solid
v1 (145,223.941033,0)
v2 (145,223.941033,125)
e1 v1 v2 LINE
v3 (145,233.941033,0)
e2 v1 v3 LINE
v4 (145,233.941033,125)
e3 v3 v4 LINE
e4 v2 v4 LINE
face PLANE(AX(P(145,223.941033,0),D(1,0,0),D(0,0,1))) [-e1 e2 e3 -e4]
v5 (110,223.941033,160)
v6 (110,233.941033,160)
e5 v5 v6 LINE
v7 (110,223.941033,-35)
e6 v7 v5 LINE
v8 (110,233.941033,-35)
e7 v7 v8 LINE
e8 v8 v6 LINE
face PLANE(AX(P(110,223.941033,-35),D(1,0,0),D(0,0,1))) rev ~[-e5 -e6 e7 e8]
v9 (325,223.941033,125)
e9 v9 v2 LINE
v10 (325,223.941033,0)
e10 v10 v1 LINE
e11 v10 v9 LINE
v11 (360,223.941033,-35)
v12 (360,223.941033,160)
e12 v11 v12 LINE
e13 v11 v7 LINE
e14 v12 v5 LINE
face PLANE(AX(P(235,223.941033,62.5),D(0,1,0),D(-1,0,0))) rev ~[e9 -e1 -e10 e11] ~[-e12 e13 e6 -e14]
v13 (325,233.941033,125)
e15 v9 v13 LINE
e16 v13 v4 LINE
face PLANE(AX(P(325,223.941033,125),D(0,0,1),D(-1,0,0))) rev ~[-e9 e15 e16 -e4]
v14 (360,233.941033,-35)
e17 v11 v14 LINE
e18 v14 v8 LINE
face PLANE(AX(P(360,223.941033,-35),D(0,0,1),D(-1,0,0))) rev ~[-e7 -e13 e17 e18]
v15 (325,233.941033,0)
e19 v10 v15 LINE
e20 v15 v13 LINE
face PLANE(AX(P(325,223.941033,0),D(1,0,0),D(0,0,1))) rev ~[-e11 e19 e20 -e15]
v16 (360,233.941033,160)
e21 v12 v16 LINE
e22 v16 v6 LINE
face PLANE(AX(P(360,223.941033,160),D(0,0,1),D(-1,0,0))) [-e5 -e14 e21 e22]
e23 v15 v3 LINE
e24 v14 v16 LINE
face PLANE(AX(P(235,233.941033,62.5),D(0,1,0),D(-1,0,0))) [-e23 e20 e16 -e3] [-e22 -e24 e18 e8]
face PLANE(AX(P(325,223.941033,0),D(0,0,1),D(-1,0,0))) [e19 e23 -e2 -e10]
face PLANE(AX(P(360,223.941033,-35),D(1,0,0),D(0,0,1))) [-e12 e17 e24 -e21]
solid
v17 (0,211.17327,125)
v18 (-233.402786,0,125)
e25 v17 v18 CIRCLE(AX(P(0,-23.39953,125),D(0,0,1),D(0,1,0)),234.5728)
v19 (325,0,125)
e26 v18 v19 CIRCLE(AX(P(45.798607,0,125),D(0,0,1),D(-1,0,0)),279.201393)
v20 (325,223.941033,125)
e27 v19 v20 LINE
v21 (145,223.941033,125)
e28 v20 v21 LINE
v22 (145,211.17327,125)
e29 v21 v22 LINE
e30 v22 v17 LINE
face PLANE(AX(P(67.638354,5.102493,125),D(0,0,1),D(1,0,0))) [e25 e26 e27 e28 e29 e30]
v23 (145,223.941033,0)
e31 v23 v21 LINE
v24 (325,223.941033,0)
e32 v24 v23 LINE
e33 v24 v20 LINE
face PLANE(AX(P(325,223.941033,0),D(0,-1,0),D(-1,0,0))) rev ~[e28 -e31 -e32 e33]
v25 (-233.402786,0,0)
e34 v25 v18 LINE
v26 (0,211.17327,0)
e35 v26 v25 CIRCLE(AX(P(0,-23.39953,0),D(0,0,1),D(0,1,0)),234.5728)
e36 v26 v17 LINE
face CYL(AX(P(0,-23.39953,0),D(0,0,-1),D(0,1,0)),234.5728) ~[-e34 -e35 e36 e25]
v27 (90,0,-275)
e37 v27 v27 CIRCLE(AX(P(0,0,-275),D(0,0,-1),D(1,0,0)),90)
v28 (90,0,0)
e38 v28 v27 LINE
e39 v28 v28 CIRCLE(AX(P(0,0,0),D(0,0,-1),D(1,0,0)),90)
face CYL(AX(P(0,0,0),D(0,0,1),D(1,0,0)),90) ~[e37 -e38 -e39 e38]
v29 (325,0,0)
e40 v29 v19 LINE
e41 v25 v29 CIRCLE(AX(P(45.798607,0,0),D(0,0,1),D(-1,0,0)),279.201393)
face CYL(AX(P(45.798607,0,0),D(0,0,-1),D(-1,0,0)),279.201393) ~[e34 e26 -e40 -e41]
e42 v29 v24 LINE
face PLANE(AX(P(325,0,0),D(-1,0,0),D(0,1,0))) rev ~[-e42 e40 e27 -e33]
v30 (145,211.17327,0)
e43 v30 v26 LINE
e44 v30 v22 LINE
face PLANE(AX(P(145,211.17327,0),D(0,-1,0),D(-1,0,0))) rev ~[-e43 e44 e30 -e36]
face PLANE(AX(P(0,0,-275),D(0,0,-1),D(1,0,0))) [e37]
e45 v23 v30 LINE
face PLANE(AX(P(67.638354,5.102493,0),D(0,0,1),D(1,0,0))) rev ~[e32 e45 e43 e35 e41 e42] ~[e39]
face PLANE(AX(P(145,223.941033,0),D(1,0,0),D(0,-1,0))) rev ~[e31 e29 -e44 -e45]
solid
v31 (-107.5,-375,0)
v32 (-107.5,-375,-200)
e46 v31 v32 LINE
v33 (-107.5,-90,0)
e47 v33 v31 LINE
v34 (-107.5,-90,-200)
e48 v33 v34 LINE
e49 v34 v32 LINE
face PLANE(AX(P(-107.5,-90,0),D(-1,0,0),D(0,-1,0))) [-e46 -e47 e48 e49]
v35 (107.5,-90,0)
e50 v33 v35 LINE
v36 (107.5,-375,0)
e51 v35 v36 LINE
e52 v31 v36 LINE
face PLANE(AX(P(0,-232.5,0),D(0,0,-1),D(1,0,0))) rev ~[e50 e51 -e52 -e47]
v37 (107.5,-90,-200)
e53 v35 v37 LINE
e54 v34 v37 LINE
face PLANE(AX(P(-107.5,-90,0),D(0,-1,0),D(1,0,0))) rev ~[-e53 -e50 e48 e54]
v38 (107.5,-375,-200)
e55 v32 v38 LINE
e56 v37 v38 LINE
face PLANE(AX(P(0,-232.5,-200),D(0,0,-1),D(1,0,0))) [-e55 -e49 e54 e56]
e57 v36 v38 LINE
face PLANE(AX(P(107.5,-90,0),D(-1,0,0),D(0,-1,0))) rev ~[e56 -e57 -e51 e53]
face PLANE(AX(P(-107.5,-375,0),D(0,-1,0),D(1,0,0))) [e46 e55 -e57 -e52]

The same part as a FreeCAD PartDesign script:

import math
import FreeCAD as App
import Part
import Sketcher

doc = App.newDocument("Part")
body = doc.addObject("PartDesign::Body", "Body")

# Sketch on XY plane
sketch1 = body.newObject("Sketcher::SketchObject", "Sketch")
sketch1.AttachmentSupport = (doc.getObject("XY_Plane"), [""])
sketch1.MapMode = "FlatFace"
sketch1.addGeometry([
    Part.ArcOfCircle(Part.Circle(App.Vector(45.798607, 0, 0), App.Vector(0, 0, 1), 279.201393), math.radians(180), math.radians(360)),  # 0
    Part.LineSegment(App.Vector(325, 0, 0), App.Vector(325, 223.941033, 0)),  # 1
    Part.LineSegment(App.Vector(325, 223.941033, 0), App.Vector(145, 223.941033, 0)),  # 2
    Part.LineSegment(App.Vector(145, 223.941033, 0), App.Vector(145, 211.17327, 0)),  # 3
    Part.LineSegment(App.Vector(145, 211.17327, 0), App.Vector(0, 211.17327, 0)),  # 4
    Part.ArcOfCircle(Part.Circle(App.Vector(0, -23.39953, 0), App.Vector(0, 0, 1), 234.5728), math.radians(90), math.radians(174.275006)),  # 5
], False)
sketch1.addConstraint([
    Sketcher.Constraint("Tangent", 0, 2, 1, 1),
    Sketcher.Constraint("Coincident", 1, 2, 2, 1),
    Sketcher.Constraint("Coincident", 2, 2, 3, 1),
    Sketcher.Constraint("Coincident", 3, 2, 4, 1),
    Sketcher.Constraint("Tangent", 4, 2, 5, 1),
    Sketcher.Constraint("Coincident", 5, 2, 0, 1),
    Sketcher.Constraint("Vertical", 1),
    Sketcher.Constraint("Horizontal", 2),
    Sketcher.Constraint("Vertical", 3),
    Sketcher.Constraint("Horizontal", 4),
    Sketcher.Constraint("PointOnObject", 0, 3, -1),
    Sketcher.Constraint("PointOnObject", 5, 3, -2),
    Sketcher.Constraint("PointOnObject", 5, 2, -1),
    Sketcher.Constraint("DistanceX", 2, 2, 2, 1, 180.0),
    Sketcher.Constraint("DistanceX", 4, 2, 4, 1, 145.0),
    Sketcher.Constraint("Radius", 5, 234.5728),
    Sketcher.Constraint("Radius", 0, 279.201393),
    Sketcher.Constraint("DistanceY", 1, 1, 1, 2, 223.941033),
])
pad1 = body.newObject("PartDesign::Pad", "Pad")
pad1.Profile = sketch1
pad1.Length = 125

# Sketch on XY plane
sketch2 = body.newObject("Sketcher::SketchObject", "Sketch001")
sketch2.AttachmentSupport = (doc.getObject("XY_Plane"), [""])
sketch2.MapMode = "FlatFace"
sketch2.addGeometry(Part.Circle(App.Vector(0, 0, 0), App.Vector(0, 0, 1), 90), False)
sketch2.addConstraint([
    Sketcher.Constraint("Coincident", 0, 3, -1, 1),
    Sketcher.Constraint("Diameter", 0, 180.0),
])
pad2 = body.newObject("PartDesign::Pad", "Pad001")
pad2.Profile = sketch2
pad2.Length = 275
pad2.Reversed = True
body2 = doc.addObject("PartDesign::Body", "Body001")

# Sketch on XZ plane
sketch3 = body2.newObject("Sketcher::SketchObject", "Sketch002")
sketch3.AttachmentSupport = (doc.getObject("XZ_Plane001"), [""])
sketch3.MapMode = "FlatFace"
sketch3.AttachmentOffset = App.Placement(App.Vector(0, 0, -223.941033), App.Rotation())
sketch3.addGeometry([
    Part.LineSegment(App.Vector(360, 160, 0), App.Vector(360, -35, 0)),  # 0
    Part.LineSegment(App.Vector(360, -35, 0), App.Vector(110, -35, 0)),  # 1
    Part.LineSegment(App.Vector(110, -35, 0), App.Vector(110, 160, 0)),  # 2
    Part.LineSegment(App.Vector(110, 160, 0), App.Vector(360, 160, 0)),  # 3
    Part.LineSegment(App.Vector(145, 0, 0), App.Vector(325, 0, 0)),  # 4
    Part.LineSegment(App.Vector(325, 0, 0), App.Vector(325, 125, 0)),  # 5
    Part.LineSegment(App.Vector(325, 125, 0), App.Vector(145, 125, 0)),  # 6
    Part.LineSegment(App.Vector(145, 125, 0), App.Vector(145, 0, 0)),  # 7
], False)
sketch3.addConstraint([
    Sketcher.Constraint("Coincident", 0, 2, 1, 1),
    Sketcher.Constraint("Coincident", 1, 2, 2, 1),
    Sketcher.Constraint("Coincident", 2, 2, 3, 1),
    Sketcher.Constraint("Coincident", 3, 2, 0, 1),
    Sketcher.Constraint("Coincident", 4, 2, 5, 1),
    Sketcher.Constraint("Coincident", 5, 2, 6, 1),
    Sketcher.Constraint("Coincident", 6, 2, 7, 1),
    Sketcher.Constraint("Coincident", 7, 2, 4, 1),
    Sketcher.Constraint("Vertical", 0),
    Sketcher.Constraint("Horizontal", 1),
    Sketcher.Constraint("Vertical", 2),
    Sketcher.Constraint("Horizontal", 3),
    Sketcher.Constraint("Horizontal", 4),
    Sketcher.Constraint("Vertical", 5),
    Sketcher.Constraint("Horizontal", 6),
    Sketcher.Constraint("Vertical", 7),
    Sketcher.Constraint("PointOnObject", 4, 2, -1),
    Sketcher.Constraint("DistanceX", 1, 2, 1, 1, 250.0),
    Sketcher.Constraint("DistanceX", 4, 1, 4, 2, 180.0),
    Sketcher.Constraint("DistanceY", 0, 2, 0, 1, 195.0),
    Sketcher.Constraint("DistanceY", 5, 1, 5, 2, 125.0),
    Sketcher.Constraint("DistanceX", -1, 1, 0, 2, 360.0),
    Sketcher.Constraint("DistanceY", 0, 2, -1, 1, 35.0),
    Sketcher.Constraint("DistanceX", -1, 1, 4, 2, 325.0),
])
pad3 = body2.newObject("PartDesign::Pad", "Pad002")
pad3.Profile = sketch3
pad3.Length = 10
pad3.Reversed = True
body3 = doc.addObject("PartDesign::Body", "Body002")

# Sketch on XY plane
sketch4 = body3.newObject("Sketcher::SketchObject", "Sketch003")
sketch4.AttachmentSupport = (doc.getObject("XY_Plane002"), [""])
sketch4.MapMode = "FlatFace"
sketch4.addGeometry([
    Part.LineSegment(App.Vector(-107.5, -375, 0), App.Vector(-107.5, -90, 0)),
    Part.LineSegment(App.Vector(-107.5, -90, 0), App.Vector(107.5, -90, 0)),
    Part.LineSegment(App.Vector(107.5, -90, 0), App.Vector(107.5, -375, 0)),
    Part.LineSegment(App.Vector(107.5, -375, 0), App.Vector(-107.5, -375, 0)),
], False)
sketch4.addConstraint([
    Sketcher.Constraint("Coincident", 0, 2, 1, 1),
    Sketcher.Constraint("Coincident", 1, 2, 2, 1),
    Sketcher.Constraint("Coincident", 2, 2, 3, 1),
    Sketcher.Constraint("Coincident", 3, 2, 0, 1),
    Sketcher.Constraint("Vertical", 0),
    Sketcher.Constraint("Horizontal", 1),
    Sketcher.Constraint("Vertical", 2),
    Sketcher.Constraint("Horizontal", 3),
    Sketcher.Constraint("DistanceX", 1, 1, 1, 2, 215.0),
    Sketcher.Constraint("DistanceY", 0, 1, 0, 2, 285.0),
    Sketcher.Constraint("DistanceY", 0, 2, -1, 1, 90.0),
    Sketcher.Constraint("DistanceX", 0, 2, -1, 1, 107.5),
])
pad4 = body3.newObject("PartDesign::Pad", "Pad003")
pad4.Profile = sketch4
pad4.Length = 200
pad4.Reversed = True

doc.recompute()
